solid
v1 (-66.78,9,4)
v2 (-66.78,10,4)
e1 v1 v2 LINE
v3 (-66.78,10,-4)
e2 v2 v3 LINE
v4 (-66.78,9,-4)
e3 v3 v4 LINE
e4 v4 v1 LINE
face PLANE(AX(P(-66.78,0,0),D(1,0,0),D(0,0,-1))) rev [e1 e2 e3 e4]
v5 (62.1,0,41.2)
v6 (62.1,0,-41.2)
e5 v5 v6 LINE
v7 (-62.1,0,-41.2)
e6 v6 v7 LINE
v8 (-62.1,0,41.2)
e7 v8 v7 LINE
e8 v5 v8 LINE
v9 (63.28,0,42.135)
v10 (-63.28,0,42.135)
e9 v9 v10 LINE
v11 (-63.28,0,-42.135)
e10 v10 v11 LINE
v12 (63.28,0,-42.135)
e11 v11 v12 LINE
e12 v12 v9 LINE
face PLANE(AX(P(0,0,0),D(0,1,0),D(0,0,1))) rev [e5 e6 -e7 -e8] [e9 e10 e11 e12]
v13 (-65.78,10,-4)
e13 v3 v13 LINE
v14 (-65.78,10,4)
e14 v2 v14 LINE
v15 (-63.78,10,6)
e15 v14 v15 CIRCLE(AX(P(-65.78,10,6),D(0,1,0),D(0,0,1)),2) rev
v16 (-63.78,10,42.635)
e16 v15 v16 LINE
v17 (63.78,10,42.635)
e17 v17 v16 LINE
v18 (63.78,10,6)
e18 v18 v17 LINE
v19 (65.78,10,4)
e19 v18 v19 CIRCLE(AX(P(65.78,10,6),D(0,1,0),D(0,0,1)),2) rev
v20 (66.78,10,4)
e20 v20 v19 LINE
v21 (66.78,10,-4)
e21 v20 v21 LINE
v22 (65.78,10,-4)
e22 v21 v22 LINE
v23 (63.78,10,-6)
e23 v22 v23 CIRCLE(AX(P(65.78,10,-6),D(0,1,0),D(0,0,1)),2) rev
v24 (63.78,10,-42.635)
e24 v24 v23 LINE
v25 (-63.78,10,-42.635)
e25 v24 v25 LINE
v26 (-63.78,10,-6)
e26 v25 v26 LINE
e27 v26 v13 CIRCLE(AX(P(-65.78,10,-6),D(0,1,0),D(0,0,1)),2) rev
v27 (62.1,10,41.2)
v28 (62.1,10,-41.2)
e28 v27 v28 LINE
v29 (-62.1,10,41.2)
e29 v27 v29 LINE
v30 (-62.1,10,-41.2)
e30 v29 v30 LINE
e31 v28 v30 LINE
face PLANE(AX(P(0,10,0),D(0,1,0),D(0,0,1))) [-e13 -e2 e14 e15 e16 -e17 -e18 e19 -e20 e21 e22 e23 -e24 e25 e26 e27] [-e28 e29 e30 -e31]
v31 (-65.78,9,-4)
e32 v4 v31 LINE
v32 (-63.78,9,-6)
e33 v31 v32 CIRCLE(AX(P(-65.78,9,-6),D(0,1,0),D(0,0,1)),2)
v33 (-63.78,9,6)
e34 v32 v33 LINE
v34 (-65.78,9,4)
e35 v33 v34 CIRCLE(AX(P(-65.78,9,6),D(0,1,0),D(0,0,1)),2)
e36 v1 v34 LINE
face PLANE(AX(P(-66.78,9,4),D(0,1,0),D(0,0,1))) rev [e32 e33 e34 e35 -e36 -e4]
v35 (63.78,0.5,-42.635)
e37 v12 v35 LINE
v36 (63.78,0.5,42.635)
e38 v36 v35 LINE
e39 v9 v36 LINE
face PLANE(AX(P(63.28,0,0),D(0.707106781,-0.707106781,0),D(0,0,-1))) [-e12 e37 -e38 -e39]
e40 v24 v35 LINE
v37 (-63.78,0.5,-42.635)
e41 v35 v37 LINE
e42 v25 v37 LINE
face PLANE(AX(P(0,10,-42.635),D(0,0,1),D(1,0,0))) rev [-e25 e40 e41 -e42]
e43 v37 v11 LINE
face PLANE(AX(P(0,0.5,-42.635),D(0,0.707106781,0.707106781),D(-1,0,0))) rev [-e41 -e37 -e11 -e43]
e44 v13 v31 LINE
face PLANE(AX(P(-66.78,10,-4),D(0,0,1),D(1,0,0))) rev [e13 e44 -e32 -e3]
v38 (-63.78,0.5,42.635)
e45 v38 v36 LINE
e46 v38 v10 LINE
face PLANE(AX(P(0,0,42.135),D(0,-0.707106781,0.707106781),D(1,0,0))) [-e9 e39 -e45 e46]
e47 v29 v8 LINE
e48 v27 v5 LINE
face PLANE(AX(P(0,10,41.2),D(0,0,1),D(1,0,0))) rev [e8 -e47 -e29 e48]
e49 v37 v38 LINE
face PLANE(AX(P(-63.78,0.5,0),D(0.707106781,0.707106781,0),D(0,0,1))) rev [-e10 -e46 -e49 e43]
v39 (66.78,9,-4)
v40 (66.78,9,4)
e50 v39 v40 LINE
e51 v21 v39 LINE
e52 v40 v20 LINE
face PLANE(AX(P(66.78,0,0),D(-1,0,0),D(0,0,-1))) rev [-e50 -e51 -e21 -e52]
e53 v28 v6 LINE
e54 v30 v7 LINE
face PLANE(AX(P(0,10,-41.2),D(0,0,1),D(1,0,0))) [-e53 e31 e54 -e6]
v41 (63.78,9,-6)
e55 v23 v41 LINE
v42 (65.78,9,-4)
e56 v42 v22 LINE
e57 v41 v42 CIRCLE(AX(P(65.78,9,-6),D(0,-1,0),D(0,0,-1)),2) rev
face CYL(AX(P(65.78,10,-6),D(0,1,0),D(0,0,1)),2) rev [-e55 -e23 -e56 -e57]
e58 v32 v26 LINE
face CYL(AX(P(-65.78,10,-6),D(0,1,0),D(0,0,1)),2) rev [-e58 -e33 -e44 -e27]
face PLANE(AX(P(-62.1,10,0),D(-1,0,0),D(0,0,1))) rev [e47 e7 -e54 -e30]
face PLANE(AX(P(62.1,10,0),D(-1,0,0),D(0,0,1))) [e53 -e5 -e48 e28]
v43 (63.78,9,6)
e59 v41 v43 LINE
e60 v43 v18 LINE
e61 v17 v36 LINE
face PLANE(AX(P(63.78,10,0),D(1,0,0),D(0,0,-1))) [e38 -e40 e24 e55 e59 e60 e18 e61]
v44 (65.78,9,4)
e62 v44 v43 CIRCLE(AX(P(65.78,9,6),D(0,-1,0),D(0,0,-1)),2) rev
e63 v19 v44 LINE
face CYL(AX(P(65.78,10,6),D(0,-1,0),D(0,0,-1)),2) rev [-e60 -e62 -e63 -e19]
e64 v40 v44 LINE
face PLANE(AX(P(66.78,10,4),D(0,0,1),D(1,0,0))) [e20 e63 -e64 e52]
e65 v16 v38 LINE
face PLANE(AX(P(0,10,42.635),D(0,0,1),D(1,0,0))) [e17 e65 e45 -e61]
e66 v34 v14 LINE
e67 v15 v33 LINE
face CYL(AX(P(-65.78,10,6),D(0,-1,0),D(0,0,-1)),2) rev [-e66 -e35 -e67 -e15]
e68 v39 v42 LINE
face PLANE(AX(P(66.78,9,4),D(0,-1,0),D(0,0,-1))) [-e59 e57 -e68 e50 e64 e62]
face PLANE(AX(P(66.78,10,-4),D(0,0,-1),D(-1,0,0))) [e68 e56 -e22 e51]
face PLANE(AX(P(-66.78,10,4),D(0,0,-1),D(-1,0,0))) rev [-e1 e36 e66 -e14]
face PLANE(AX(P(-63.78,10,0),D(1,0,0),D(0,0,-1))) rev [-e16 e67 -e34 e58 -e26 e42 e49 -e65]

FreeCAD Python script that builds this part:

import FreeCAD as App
import Part
import Sketcher
Q = App.Units.Quantity


def edges_at(feature, points):
    """Names of the edges that pass closest to the given points."""
    edges = feature.Shape.Edges
    near = lambda p: min(range(len(edges)), key=lambda i: edges[i].distToShape(Part.Vertex(*p))[0])
    return sorted({f"Edge{near(p) + 1}" for p in points})


def add_polygon(sketch, points):
    """Adds a closed chain of lines whose ends are joined by coincident constraints."""
    first, n = sketch.GeometryCount, len(points)
    for a, b in zip(points, points[1:] + points[:1]):
        sketch.addGeometry(Part.LineSegment(App.Vector(*a, 0), App.Vector(*b, 0)), False)
    for i in range(n):
        sketch.addConstraint(Sketcher.Constraint("Coincident", first + i, 2, first + (i + 1) % n, 1))

doc = App.newDocument("Part")
body = doc.addObject("PartDesign::Body", "Body")

# Sketch on XZ plane
sketch1 = body.newObject("Sketcher::SketchObject", "Sketch")
sketch1.AttachmentSupport = (doc.getObject("XZ_Plane"), [""])
sketch1.MapMode = "FlatFace"
add_polygon(sketch1, [(-64, -43), (-64, 43), (64, 43), (64, -43)])  # lines 0-3
add_polygon(sketch1, [(62, 41), (-62, 41), (-62, -41), (62, -41)])  # lines 4-7
sketch1.addConstraint([
    Sketcher.Constraint("Vertical", 0),
    Sketcher.Constraint("Horizontal", 1),
    Sketcher.Constraint("Vertical", 2),
    Sketcher.Constraint("Horizontal", 3),
    Sketcher.Constraint("Horizontal", 4),
    Sketcher.Constraint("Vertical", 5),
    Sketcher.Constraint("Horizontal", 6),
    Sketcher.Constraint("Vertical", 7),
    Sketcher.Constraint("Symmetric", 0, 2, 2, 2, -1, 1),
    Sketcher.Constraint("Symmetric", 4, 2, 6, 2, -1, 1),
    Sketcher.Constraint("DistanceX", 4, 2, 4, 1, Q("124.2 mm")),
    Sketcher.Constraint("DistanceY", 5, 2, 5, 1, Q("82.4 mm")),
    Sketcher.Constraint("DistanceX", 1, 1, 1, 2, Q("127.56 mm")),
    Sketcher.Constraint("DistanceY", 0, 1, 0, 2, Q("85.27 mm")),
])
pad1 = body.newObject("PartDesign::Pad", "Pad")
pad1.Profile = sketch1
pad1.Length = 10
pad1.Reversed = True

# Sketch on YZ plane
sketch2 = body.newObject("Sketcher::SketchObject", "Sketch001")
sketch2.AttachmentSupport = (doc.getObject("YZ_Plane"), [""])
sketch2.MapMode = "FlatFace"
sketch2.AttachmentOffset = App.Placement(App.Vector(0, 0, -63.78), App.Rotation())
add_polygon(sketch2, [(10, -4), (9, -4), (9, 4), (10, 4)])  # lines 0-3
sketch2.addConstraint([
    Sketcher.Constraint("Horizontal", 0),
    Sketcher.Constraint("Vertical", 1),
    Sketcher.Constraint("Horizontal", 2),
    Sketcher.Constraint("Vertical", 3),
    Sketcher.Constraint("DistanceX", 0, 2, 0, 1, Q("1 mm")),
    Sketcher.Constraint("DistanceY", 1, 1, 1, 2, Q("8 mm")),
    Sketcher.Constraint("DistanceX", -1, 1, 0, 2, Q("9 mm")),
    Sketcher.Constraint("DistanceY", 0, 2, -1, 1, Q("4 mm")),
])
pad2 = body.newObject("PartDesign::Pad", "Pad001")
pad2.Profile = sketch2
pad2.Length = 3
pad2.Reversed = True
doc.recompute()

chamfer = body.newObject("PartDesign::Chamfer", "Chamfer")
chamfer.Base = (pad2, edges_at(pad2, [
    (0, 0, 42.635),
    (-63.78, 0, 0),
    (0, 0, -42.635),
    (63.78, 0, 0),
]))
chamfer.Size = 0.5
doc.recompute()

mirrored = body.newObject("PartDesign::Mirrored", "Mirrored")
mirrored.Originals = [pad2]
mirrored.MirrorPlane = (doc.getObject("YZ_Plane"), [""])
body.Tip = mirrored
doc.recompute()

fillet = body.newObject("PartDesign::Fillet", "Fillet")
fillet.Base = (mirrored, edges_at(mirrored, [
    (-63.78, 9.5, -4),
    (-63.78, 9.5, 4),
    (63.78, 9.5, -4),
    (63.78, 9.5, 4),
]))
fillet.Radius = 2

doc.recompute()
